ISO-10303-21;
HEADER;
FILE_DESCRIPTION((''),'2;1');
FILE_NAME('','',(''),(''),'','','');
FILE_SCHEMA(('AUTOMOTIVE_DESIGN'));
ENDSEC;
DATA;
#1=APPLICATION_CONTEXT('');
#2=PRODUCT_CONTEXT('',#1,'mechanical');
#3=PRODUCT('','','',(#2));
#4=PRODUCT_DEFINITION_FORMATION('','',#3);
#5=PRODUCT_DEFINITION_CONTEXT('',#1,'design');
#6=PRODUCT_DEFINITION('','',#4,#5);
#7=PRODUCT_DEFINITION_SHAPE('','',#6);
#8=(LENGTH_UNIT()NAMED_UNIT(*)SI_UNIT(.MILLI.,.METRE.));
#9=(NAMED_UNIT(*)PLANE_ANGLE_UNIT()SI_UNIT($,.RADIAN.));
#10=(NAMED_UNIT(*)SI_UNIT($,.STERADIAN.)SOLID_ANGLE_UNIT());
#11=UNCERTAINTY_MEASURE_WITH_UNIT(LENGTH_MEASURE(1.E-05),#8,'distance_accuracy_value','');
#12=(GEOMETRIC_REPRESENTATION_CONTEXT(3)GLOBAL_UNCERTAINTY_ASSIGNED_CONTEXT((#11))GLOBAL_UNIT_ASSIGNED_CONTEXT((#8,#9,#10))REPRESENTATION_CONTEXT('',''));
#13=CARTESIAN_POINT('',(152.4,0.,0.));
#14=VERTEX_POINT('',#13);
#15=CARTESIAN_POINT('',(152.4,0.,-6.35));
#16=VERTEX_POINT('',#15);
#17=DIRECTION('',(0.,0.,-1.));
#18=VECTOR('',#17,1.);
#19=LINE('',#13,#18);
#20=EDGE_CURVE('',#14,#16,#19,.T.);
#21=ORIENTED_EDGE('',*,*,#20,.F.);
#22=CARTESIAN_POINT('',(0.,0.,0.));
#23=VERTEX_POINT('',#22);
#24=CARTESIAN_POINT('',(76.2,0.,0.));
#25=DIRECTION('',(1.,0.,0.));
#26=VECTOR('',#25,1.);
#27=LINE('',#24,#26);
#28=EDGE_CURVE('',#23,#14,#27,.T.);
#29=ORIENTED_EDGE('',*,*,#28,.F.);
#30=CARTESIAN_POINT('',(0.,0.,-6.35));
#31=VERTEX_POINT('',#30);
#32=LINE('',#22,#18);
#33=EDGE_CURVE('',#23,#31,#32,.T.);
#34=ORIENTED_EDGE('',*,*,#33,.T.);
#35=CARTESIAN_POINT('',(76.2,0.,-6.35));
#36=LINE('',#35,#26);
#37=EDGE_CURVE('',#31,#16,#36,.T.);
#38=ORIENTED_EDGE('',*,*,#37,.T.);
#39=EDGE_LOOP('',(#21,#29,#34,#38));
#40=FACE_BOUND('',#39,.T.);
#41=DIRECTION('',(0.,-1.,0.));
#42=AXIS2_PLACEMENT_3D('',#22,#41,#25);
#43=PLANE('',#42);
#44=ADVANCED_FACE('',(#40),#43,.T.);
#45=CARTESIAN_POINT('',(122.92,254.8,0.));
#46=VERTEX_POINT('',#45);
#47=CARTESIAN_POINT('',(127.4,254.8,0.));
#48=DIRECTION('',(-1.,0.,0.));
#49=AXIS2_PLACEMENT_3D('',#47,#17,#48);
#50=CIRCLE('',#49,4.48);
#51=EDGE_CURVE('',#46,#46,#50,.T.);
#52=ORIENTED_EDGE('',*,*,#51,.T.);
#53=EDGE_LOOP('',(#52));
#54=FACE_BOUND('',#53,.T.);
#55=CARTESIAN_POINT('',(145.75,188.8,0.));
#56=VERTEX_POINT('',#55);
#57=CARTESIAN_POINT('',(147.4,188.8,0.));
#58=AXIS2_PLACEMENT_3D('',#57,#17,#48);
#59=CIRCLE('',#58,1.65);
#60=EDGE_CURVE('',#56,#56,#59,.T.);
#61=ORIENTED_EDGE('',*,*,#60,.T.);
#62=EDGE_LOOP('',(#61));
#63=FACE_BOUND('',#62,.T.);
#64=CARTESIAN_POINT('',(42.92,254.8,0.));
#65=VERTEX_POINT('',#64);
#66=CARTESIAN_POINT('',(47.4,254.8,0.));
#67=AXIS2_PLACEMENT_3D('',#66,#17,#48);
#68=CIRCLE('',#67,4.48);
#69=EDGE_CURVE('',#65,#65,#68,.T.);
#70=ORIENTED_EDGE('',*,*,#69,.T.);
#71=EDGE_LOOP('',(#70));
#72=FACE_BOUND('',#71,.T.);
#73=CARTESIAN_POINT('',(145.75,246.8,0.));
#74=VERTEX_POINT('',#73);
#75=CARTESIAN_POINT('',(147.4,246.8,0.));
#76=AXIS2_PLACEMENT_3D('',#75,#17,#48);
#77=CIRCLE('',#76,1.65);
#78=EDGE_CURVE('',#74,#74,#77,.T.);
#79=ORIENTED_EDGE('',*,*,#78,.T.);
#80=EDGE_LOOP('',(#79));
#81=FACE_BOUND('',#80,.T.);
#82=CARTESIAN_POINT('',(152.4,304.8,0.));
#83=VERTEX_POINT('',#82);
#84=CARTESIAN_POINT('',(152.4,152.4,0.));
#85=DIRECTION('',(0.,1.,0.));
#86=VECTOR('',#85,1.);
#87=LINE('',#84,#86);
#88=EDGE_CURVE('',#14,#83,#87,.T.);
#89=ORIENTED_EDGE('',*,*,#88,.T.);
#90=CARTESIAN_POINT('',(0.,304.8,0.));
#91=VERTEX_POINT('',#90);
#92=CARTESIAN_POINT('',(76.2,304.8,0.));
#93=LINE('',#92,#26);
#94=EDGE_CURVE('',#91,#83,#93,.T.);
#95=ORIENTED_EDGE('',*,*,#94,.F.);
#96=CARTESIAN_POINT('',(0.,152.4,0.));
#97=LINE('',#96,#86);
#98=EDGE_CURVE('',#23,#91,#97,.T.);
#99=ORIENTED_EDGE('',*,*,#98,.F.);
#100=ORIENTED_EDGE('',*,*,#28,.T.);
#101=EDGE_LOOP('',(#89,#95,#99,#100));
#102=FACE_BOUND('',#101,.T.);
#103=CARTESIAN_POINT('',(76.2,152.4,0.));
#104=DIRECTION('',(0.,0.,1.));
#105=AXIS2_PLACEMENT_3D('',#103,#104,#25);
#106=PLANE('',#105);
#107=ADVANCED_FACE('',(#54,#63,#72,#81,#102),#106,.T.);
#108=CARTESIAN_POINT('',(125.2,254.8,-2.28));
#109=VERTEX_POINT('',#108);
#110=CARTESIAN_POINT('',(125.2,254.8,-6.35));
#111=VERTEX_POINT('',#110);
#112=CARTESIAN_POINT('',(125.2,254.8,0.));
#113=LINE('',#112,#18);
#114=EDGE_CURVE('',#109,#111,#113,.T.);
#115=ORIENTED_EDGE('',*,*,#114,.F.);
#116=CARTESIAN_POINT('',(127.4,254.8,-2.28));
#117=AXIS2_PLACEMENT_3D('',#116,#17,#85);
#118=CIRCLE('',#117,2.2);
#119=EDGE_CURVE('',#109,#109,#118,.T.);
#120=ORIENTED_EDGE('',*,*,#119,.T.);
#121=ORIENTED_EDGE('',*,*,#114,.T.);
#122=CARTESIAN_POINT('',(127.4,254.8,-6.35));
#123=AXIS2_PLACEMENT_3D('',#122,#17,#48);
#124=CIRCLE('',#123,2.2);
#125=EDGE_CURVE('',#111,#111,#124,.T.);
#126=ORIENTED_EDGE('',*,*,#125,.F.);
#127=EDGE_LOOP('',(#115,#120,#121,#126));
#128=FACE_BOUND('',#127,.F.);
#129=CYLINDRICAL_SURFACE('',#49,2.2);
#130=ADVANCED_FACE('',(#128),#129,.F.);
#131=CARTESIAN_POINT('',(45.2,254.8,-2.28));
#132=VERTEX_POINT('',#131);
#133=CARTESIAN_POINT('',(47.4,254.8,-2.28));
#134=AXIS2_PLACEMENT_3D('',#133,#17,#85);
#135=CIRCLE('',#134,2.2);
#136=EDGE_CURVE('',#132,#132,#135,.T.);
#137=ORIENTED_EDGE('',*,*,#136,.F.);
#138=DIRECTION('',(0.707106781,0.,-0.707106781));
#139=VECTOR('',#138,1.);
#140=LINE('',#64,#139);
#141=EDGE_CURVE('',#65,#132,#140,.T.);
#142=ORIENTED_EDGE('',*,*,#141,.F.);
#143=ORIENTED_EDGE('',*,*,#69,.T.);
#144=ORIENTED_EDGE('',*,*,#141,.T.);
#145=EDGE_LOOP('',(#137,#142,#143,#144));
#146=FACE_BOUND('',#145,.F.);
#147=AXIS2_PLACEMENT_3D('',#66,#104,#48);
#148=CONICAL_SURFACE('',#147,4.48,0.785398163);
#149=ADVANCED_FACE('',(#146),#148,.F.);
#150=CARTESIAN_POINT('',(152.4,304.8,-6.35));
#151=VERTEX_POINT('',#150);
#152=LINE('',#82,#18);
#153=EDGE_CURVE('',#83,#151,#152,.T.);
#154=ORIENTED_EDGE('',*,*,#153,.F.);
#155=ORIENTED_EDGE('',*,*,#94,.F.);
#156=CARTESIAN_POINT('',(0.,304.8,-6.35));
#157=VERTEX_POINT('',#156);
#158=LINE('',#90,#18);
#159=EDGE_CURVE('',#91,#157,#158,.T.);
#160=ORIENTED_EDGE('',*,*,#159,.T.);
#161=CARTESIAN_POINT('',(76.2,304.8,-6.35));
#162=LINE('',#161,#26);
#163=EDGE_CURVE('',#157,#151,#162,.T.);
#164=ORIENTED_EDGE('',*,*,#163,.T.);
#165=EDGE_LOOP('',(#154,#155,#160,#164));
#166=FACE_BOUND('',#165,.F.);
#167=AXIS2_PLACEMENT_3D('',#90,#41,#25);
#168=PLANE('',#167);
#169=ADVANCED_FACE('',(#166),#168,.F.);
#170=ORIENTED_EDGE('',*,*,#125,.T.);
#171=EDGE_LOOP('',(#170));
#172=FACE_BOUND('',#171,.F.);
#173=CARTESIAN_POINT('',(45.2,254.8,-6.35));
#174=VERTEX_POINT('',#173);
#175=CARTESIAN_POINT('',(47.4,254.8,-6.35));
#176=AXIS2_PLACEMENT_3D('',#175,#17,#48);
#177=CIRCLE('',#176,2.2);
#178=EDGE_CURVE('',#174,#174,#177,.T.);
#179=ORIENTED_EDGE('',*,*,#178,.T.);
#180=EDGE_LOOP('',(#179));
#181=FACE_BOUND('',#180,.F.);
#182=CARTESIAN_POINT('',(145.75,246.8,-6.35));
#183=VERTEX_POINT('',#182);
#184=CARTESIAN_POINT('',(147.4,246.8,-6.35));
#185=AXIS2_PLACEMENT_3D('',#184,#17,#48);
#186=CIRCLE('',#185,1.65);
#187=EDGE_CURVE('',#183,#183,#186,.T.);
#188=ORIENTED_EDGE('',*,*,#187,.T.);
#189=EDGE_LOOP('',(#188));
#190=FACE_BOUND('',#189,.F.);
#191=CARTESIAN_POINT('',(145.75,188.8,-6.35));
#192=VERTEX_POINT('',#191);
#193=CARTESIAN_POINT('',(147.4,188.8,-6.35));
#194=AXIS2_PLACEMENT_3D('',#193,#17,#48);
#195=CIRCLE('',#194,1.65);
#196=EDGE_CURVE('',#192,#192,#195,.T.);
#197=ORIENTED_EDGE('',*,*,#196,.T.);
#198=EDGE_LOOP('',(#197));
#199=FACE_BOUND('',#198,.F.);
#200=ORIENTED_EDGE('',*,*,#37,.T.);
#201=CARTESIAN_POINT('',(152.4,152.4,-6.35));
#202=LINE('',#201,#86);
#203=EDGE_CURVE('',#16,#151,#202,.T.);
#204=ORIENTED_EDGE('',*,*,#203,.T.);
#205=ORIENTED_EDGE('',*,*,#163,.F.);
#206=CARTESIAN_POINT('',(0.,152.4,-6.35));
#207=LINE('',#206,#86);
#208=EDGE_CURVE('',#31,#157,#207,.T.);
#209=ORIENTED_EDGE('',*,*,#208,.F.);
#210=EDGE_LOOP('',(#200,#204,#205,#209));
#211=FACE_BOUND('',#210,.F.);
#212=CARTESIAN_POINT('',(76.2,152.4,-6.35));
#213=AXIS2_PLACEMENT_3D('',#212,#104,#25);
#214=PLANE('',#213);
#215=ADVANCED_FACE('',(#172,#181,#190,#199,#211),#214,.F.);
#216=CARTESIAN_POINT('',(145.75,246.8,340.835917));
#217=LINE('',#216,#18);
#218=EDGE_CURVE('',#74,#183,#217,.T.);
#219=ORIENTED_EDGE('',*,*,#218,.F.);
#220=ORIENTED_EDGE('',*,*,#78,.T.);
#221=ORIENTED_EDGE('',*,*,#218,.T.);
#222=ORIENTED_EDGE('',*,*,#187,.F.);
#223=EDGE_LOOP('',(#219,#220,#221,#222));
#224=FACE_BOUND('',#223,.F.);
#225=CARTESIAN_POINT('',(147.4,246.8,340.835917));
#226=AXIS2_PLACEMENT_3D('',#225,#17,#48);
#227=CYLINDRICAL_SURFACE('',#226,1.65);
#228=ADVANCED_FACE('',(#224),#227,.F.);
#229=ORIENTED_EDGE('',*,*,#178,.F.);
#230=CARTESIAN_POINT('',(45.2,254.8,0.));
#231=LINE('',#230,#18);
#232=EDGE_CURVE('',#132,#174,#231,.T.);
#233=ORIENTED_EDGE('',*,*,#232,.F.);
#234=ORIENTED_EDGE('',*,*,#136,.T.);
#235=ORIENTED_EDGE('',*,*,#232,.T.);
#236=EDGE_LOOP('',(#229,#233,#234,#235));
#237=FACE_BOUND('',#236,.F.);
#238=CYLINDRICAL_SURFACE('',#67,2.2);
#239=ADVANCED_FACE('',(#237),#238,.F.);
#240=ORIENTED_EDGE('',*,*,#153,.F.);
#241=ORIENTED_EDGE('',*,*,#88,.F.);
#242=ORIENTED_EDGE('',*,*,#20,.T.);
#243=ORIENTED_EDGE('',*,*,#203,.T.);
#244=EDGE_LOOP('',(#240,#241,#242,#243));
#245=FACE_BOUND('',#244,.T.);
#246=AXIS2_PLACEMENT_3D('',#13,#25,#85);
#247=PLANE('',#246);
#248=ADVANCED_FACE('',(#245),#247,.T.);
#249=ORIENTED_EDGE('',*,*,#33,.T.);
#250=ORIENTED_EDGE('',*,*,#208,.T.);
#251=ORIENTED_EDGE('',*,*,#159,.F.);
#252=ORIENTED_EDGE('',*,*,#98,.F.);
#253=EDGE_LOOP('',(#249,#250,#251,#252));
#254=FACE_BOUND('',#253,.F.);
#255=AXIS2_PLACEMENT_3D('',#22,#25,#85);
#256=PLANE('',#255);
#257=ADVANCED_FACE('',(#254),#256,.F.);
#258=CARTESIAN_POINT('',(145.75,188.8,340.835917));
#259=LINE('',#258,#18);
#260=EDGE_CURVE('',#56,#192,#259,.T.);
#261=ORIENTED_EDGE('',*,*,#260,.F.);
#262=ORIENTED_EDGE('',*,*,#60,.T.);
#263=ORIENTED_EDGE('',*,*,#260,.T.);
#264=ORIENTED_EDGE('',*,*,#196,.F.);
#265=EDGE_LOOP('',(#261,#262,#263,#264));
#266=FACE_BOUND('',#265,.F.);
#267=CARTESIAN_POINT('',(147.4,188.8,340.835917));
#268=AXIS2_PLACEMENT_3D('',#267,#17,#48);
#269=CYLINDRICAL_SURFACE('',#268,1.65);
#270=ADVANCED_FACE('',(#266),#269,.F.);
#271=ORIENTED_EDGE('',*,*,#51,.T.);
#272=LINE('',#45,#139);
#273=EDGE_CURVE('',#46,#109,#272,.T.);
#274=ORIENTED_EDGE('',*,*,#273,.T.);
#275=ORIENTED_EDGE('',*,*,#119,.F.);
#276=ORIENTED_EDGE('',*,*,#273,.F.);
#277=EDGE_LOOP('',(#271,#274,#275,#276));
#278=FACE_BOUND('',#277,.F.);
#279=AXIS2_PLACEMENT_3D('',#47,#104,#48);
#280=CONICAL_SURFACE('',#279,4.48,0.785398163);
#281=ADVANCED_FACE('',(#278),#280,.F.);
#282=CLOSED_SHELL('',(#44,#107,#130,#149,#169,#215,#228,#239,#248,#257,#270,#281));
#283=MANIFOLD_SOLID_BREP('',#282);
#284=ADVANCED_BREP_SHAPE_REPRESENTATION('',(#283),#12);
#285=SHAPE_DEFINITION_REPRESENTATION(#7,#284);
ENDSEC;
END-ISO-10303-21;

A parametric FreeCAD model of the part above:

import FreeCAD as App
import Part
import Sketcher
from FreeCAD import Vector
Q = App.Units.Quantity


def add_polygon(sketch, points):
    """Adds a closed chain of lines whose ends are joined by coincident constraints."""
    first, n = sketch.GeometryCount, len(points)
    for a, b in zip(points, points[1:] + points[:1]):
        sketch.addGeometry(Part.LineSegment(App.Vector(*a, 0), App.Vector(*b, 0)), False)
    for i in range(n):
        sketch.addConstraint(Sketcher.Constraint("Coincident", first + i, 2, first + (i + 1) % n, 1))

doc = App.newDocument("Part")
body = doc.addObject("PartDesign::Body", "Body")

sketch1 = body.newObject("Sketcher::SketchObject", "Sketch")
sketch1.AttachmentSupport = (doc.getObject("XY_Plane"), [""])
sketch1.MapMode = "FlatFace"
add_polygon(sketch1, [(0, 305), (0, 0), (152, 0), (152, 305)])
sketch1.addConstraint(Sketcher.Constraint("Vertical", 0))
sketch1.addConstraint(Sketcher.Constraint("Horizontal", 1))
sketch1.addConstraint(Sketcher.Constraint("Vertical", 2))
sketch1.addConstraint(Sketcher.Constraint("Horizontal", 3))
sketch1.addConstraint(Sketcher.Constraint("Coincident", 0, 2, -1, 1))
sketch1.addConstraint(Sketcher.Constraint("DistanceX", 1, 1, 1, 2, Q("6 in")))
sketch1.addConstraint(Sketcher.Constraint("DistanceY", 0, 2, 0, 1, Q("12 in")))
pad1 = body.newObject("PartDesign::Pad", "Pad")
pad1.Profile = sketch1
pad1.Length = Q("0.25 in")
pad1.Reversed = True

sketch2 = body.newObject("Sketcher::SketchObject", "Sketch001")
sketch2.AttachmentSupport = (doc.getObject("XY_Plane"), [""])
sketch2.MapMode = "FlatFace"
sketch2.addGeometry(Part.Circle(Vector(127.4, 254.8, 0), Vector(0, 0, 1), 2.2), False)
sketch2.addGeometry(Part.Circle(Vector(47.4, 254.8, 0), Vector(0, 0, 1), 2.2), False)
sketch2.addConstraint(Sketcher.Constraint("Equal", 0, 1))
sketch2.addConstraint(Sketcher.Constraint("Horizontal", 0, 3, 1, 3))
sketch2.addConstraint(Sketcher.Constraint("Diameter", 0, Q("4.4 mm")))
sketch2.addConstraint(Sketcher.Constraint("DistanceX", -1, 1, 0, 3, Q("127.4 mm")))
sketch2.addConstraint(Sketcher.Constraint("DistanceY", -1, 1, 0, 3, Q("254.8 mm")))
sketch2.addConstraint(Sketcher.Constraint("DistanceX", -1, 1, 1, 3, Q("47.4 mm")))
doc.recompute()
hole = body.newObject("PartDesign::Hole", "Hole")
hole.Profile = sketch2
hole.ThreadType = "None"
hole.Diameter = 4.4
hole.DepthType = "ThroughAll"
hole.HoleCutType = "Countersink"
hole.HoleCutDiameter = 8.96
hole.HoleCutCountersinkAngle = 90

sketch3 = body.newObject("Sketcher::SketchObject", "Sketch002")
sketch3.AttachmentSupport = (doc.getObject("XY_Plane"), [""])
sketch3.MapMode = "FlatFace"
sketch3.addGeometry(Part.Circle(Vector(147.4, 246.8, 0), Vector(0, 0, 1), 1.6), False)
sketch3.addGeometry(Part.Circle(Vector(147.4, 188.8, 0), Vector(0, 0, 1), 1.6), False)
sketch3.addConstraint(Sketcher.Constraint("Equal", 0, 1))
sketch3.addConstraint(Sketcher.Constraint("Vertical", 0, 3, 1, 3))
sketch3.addConstraint(Sketcher.Constraint("Diameter", 0, Q("3.3 mm")))
sketch3.addConstraint(Sketcher.Constraint("DistanceX", -1, 1, 0, 3, Q("147.4 mm")))
sketch3.addConstraint(Sketcher.Constraint("DistanceY", -1, 1, 0, 3, Q("246.8 mm")))
sketch3.addConstraint(Sketcher.Constraint("DistanceY", -1, 1, 1, 3, Q("188.8 mm")))
doc.recompute()
hole2 = body.newObject("PartDesign::Hole", "Hole001")
hole2.Profile = sketch3
hole2.ThreadType = "None"
hole2.Diameter = 3.3
hole2.DepthType = "ThroughAll"

doc.recompute()
